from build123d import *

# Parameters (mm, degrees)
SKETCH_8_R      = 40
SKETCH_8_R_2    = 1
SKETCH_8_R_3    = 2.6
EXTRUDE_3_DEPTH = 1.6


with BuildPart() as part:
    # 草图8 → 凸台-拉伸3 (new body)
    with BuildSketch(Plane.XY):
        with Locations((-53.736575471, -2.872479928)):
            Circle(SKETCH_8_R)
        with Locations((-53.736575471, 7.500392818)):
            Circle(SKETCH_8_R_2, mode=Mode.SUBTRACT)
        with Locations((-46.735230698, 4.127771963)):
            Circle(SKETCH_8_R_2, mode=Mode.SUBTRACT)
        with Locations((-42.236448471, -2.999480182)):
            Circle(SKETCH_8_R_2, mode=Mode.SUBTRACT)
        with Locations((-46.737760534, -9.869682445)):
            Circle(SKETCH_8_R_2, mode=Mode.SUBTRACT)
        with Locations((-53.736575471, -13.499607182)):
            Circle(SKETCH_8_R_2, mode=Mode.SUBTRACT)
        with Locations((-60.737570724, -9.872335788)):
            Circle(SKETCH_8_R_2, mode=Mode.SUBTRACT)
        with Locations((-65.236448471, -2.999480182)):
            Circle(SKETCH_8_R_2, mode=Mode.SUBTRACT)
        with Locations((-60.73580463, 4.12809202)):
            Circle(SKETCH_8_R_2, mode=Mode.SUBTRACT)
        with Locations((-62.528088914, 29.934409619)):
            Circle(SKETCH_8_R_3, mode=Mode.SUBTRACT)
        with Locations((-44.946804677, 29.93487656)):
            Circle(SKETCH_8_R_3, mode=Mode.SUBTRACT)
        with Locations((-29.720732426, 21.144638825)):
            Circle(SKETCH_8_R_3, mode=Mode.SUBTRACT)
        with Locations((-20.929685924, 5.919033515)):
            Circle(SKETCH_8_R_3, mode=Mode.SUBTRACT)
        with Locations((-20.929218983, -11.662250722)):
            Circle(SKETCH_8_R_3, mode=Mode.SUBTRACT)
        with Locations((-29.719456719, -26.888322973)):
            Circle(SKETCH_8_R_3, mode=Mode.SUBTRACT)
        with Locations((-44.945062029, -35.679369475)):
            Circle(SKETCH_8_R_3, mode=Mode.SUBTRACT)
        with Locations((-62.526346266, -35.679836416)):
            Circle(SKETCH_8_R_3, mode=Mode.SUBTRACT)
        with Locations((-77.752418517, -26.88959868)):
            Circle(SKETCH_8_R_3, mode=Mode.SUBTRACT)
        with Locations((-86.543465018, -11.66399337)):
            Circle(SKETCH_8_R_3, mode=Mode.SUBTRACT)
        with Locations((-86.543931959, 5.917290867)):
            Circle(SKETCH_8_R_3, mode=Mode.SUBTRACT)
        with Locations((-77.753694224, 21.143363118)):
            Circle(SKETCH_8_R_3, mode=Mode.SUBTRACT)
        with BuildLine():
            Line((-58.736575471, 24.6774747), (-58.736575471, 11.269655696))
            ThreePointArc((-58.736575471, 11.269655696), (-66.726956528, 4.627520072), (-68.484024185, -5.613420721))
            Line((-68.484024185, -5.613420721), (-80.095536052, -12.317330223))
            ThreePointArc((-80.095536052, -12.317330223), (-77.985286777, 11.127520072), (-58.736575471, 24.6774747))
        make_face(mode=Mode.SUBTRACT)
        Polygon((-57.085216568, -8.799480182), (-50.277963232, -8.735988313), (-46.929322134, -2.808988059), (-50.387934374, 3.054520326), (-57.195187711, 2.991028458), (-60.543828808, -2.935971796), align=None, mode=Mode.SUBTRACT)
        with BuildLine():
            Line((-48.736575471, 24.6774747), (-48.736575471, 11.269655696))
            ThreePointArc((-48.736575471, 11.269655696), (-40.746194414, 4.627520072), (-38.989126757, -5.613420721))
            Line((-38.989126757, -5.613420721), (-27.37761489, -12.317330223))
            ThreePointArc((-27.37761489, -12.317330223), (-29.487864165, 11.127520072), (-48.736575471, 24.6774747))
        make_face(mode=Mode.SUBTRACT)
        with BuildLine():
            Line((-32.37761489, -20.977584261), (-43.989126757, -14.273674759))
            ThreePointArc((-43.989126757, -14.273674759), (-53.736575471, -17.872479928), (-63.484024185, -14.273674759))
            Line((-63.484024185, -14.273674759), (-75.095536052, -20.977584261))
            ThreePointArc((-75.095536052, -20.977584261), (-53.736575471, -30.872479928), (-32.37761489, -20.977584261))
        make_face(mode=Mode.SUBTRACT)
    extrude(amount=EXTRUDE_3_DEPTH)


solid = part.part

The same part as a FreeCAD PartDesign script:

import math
import FreeCAD as App
import Part
import Sketcher

V = App.Vector
Q = App.Units.Quantity


def add_polygon(sketch, points):
    """Adds a closed chain of lines whose ends are joined by coincident constraints."""
    first, n = sketch.GeometryCount, len(points)
    for a, b in zip(points, points[1:] + points[:1]):
        sketch.addGeometry(Part.LineSegment(App.Vector(*a, 0), App.Vector(*b, 0)), False)
    for i in range(n):
        sketch.addConstraint(Sketcher.Constraint("Coincident", first + i, 2, first + (i + 1) % n, 1))

doc = App.newDocument("Part")
body = doc.addObject("PartDesign::Body", "Body")

# Sketch on XY plane
sketch1 = doc.addObject("Sketcher::SketchObject", "Sketch")
body.addObject(sketch1)
sketch1.AttachmentSupport = (doc.XY_Plane, [""])
sketch1.MapMode = "FlatFace"
sketch1.addGeometry(Part.Circle(V(-53.7, -2.9, 0), V(0, 0, 1), 40), False)  # 0
sketch1.addGeometry(Part.Circle(V(-77.8, -26.9, 0), V(0, 0, 1), 2.6), False)  # 1
sketch1.addGeometry(Part.Circle(V(-62.5, -35.7, 0), V(0, 0, 1), 2.6), False)  # 2
sketch1.addGeometry(Part.Circle(V(-86.5, -11.7, 0), V(0, 0, 1), 2.6), False)  # 3
sketch1.addGeometry(Part.Circle(V(-65.2, -3, 0), V(0, 0, 1), 1), False)  # 4
sketch1.addGeometry(Part.Circle(V(-60.7, -9.9, 0), V(0, 0, 1), 1), False)  # 5
sketch1.addGeometry(Part.Circle(V(-44.9, -35.7, 0), V(0, 0, 1), 2.6), False)  # 6
sketch1.addGeometry(Part.LineSegment(V(-44, -14.3, 0), V(-32.4, -21, 0)), False)  # 7
sketch1.addGeometry(Part.ArcOfCircle(Part.Circle(V(-53.7, -2.9, 0), V(0, 0, 1), 28), math.radians(-140), math.radians(-40)), False)  # 8
sketch1.addGeometry(Part.LineSegment(V(-75.1, -21, 0), V(-63.5, -14.3, 0)), False)  # 9
sketch1.addGeometry(Part.ArcOfCircle(Part.Circle(V(-53.7, -2.9, 0), V(0, 0, 1), 15), math.radians(-131), math.radians(-49)), False)  # 10
sketch1.addGeometry(Part.Circle(V(-29.7, -26.9, 0), V(0, 0, 1), 2.6), False)  # 11
sketch1.addGeometry(Part.Circle(V(-53.7, -13.5, 0), V(0, 0, 1), 1), False)  # 12
sketch1.addGeometry(Part.Circle(V(-46.7, -9.9, 0), V(0, 0, 1), 1), False)  # 13
sketch1.addGeometry(Part.Circle(V(-42.2, -3, 0), V(0, 0, 1), 1), False)  # 14
sketch1.addGeometry(Part.Circle(V(-20.9, -11.7, 0), V(0, 0, 1), 2.6), False)  # 15
sketch1.addGeometry(Part.Circle(V(-86.5, 5.9, 0), V(0, 0, 1), 2.6), False)  # 16
sketch1.addGeometry(Part.Circle(V(-60.7, 4.1, 0), V(0, 0, 1), 1), False)  # 17
sketch1.addGeometry(Part.ArcOfCircle(Part.Circle(V(-53.7, -2.9, 0), V(0, 0, 1), 28), math.radians(100), math.radians(200)), False)  # 18
sketch1.addGeometry(Part.LineSegment(V(-58.7, 24.7, 0), V(-58.7, 11.3, 0)), False)  # 19
sketch1.addGeometry(Part.ArcOfCircle(Part.Circle(V(-53.7, -2.9, 0), V(0, 0, 1), 15), math.radians(109), math.radians(191)), False)  # 20
sketch1.addGeometry(Part.LineSegment(V(-68.5, -5.6, 0), V(-80.1, -12.3, 0)), False)  # 21
sketch1.addGeometry(Part.Circle(V(-77.8, 21.1, 0), V(0, 0, 1), 2.6), False)  # 22
sketch1.addGeometry(Part.Circle(V(-62.5, 29.9, 0), V(0, 0, 1), 2.6), False)  # 23
add_polygon(sketch1, [(-50.3, -8.7), (-57.1, -8.8), (-60.5, -2.9), (-57.2, 3), (-50.4, 3.1), (-46.9, -2.8)])  # lines 24-29
sketch1.addGeometry(Part.Circle(V(-46.7, 4.1, 0), V(0, 0, 1), 1), False)  # 30
sketch1.addGeometry(Part.Circle(V(-53.7, 7.5, 0), V(0, 0, 1), 1), False)  # 31
sketch1.addGeometry(Part.LineSegment(V(-48.7, 11.3, 0), V(-48.7, 24.7, 0)), False)  # 32
sketch1.addGeometry(Part.ArcOfCircle(Part.Circle(V(-53.7, -2.9, 0), V(0, 0, 1), 28), math.radians(-20), math.radians(80)), False)  # 33
sketch1.addGeometry(Part.LineSegment(V(-27.4, -12.3, 0), V(-39, -5.6, 0)), False)  # 34
sketch1.addGeometry(Part.ArcOfCircle(Part.Circle(V(-53.7, -2.9, 0), V(0, 0, 1), 15), math.radians(-11), math.radians(71)), False)  # 35
sketch1.addGeometry(Part.Circle(V(-20.9, 5.9, 0), V(0, 0, 1), 2.6), False)  # 36
sketch1.addGeometry(Part.Circle(V(-44.9, 29.9, 0), V(0, 0, 1), 2.6), False)  # 37
sketch1.addGeometry(Part.Circle(V(-29.7, 21.1, 0), V(0, 0, 1), 2.6), False)  # 38
sketch1.addConstraint([
    Sketcher.Constraint("Coincident", 7, 2, 8, 2),
    Sketcher.Constraint("Coincident", 8, 1, 9, 1),
    Sketcher.Constraint("Coincident", 9, 2, 10, 1),
    Sketcher.Constraint("Coincident", 10, 2, 7, 1),
    Sketcher.Constraint("Coincident", 18, 1, 19, 1),
    Sketcher.Constraint("Coincident", 19, 2, 20, 1),
    Sketcher.Constraint("Coincident", 20, 2, 21, 1),
    Sketcher.Constraint("Coincident", 21, 2, 18, 2),
    Sketcher.Constraint("Coincident", 32, 2, 33, 2),
    Sketcher.Constraint("Coincident", 33, 1, 34, 1),
    Sketcher.Constraint("Coincident", 34, 2, 35, 1),
    Sketcher.Constraint("Coincident", 35, 2, 32, 1),
    Sketcher.Constraint("Vertical", 19),
    Sketcher.Constraint("Vertical", 32),
    Sketcher.Constraint("Coincident", 8, 3, 0, 3),
    Sketcher.Constraint("Coincident", 10, 3, 0, 3),
    Sketcher.Constraint("Coincident", 18, 3, 0, 3),
    Sketcher.Constraint("Coincident", 20, 3, 0, 3),
    Sketcher.Constraint("Coincident", 33, 3, 0, 3),
    Sketcher.Constraint("Coincident", 35, 3, 0, 3),
    Sketcher.Constraint("Equal", 1, 2),
    Sketcher.Constraint("Equal", 2, 3),
    Sketcher.Constraint("Equal", 4, 5),
    Sketcher.Constraint("Equal", 3, 6),
    Sketcher.Constraint("Equal", 6, 11),
    Sketcher.Constraint("Equal", 5, 12),
    Sketcher.Constraint("Equal", 12, 13),
    Sketcher.Constraint("Equal", 13, 14),
    Sketcher.Constraint("Equal", 11, 15),
    Sketcher.Constraint("Equal", 15, 16),
    Sketcher.Constraint("Equal", 14, 17),
    Sketcher.Constraint("Equal", 8, 18),
    Sketcher.Constraint("Equal", 10, 20),
    Sketcher.Constraint("Equal", 16, 22),
    Sketcher.Constraint("Equal", 22, 23),
    Sketcher.Constraint("Equal", 17, 30),
    Sketcher.Constraint("Equal", 30, 31),
    Sketcher.Constraint("Equal", 18, 33),
    Sketcher.Constraint("Equal", 20, 35),
    Sketcher.Constraint("Equal", 23, 36),
    Sketcher.Constraint("Equal", 36, 37),
    Sketcher.Constraint("Equal", 37, 38),
    Sketcher.Constraint("Parallel", 9, 21),
    Sketcher.Constraint("Parallel", 24, 27),
    Sketcher.Constraint("Parallel", 25, 28),
    Sketcher.Constraint("Parallel", 26, 29),
    Sketcher.Constraint("Parallel", 7, 34),
    Sketcher.Constraint("Horizontal", 4, 3, 14, 3),
    Sketcher.Constraint("Horizontal", 7, 2, 8, 1),
    Sketcher.Constraint("Horizontal", 9, 2, 10, 2),
    Sketcher.Constraint("Horizontal", 18, 1, 32, 2),
    Sketcher.Constraint("Horizontal", 21, 2, 33, 1),
    Sketcher.Constraint("Vertical", 10, 3, 12, 3),
    Sketcher.Constraint("Vertical", 20, 3, 31, 3),
    Sketcher.Constraint("Equal", 9, 21),
    Sketcher.Constraint("Equal", 24, 25),
    Sketcher.Constraint("Equal", 25, 26),
    Sketcher.Constraint("Equal", 26, 27),
    Sketcher.Constraint("Diameter", 0, Q("80 mm")),
    Sketcher.Constraint("Diameter", 4, Q("2 mm")),
    Sketcher.Constraint("Radius", 8, Q("28 mm")),
    Sketcher.Constraint("Radius", 10, Q("15 mm")),
    Sketcher.Constraint("Diameter", 1, Q("5.2 mm")),
    Sketcher.Constraint("Angle", 7, Q("-30 deg")),
    Sketcher.Constraint("DistanceX", 18, 1, 31, 3, Q("5 mm")),
    Sketcher.Constraint("DistanceX", 20, 2, 9, 2, Q("5 mm")),
    Sketcher.Constraint("DistanceY", 4, 3, 0, 3, Q("0.127 mm")),
    Sketcher.Constraint("DistanceX", 17, 3, 37, 3, Q("15.789 mm")),
    Sketcher.Constraint("DistanceY", 24, 2, 0, 3, Q("5.927 mm")),
    Sketcher.Constraint("DistanceY", 25, 2, 26, 2, Q("5.927 mm")),
    Sketcher.Constraint("DistanceY", 10, 3, 27, 2, Q("5.927 mm")),
    Sketcher.Constraint("DistanceY", 1, 3, -1, 1, Q("26.889599 mm")),
    Sketcher.Constraint("DistanceY", 2, 3, 5, 3, Q("25.807501 mm")),
    Sketcher.Constraint("DistanceY", 17, 3, 31, 3, Q("3.372301 mm")),
    Sketcher.Constraint("DistanceX", 30, 3, 38, 3, Q("17.014498 mm")),
    Sketcher.Constraint("DistanceY", 7, 2, 13, 3, Q("11.107902 mm")),
    Sketcher.Constraint("DistanceY", 18, 1, 37, 3, Q("5.257402 mm")),
    Sketcher.Constraint("Distance", 24, Q("6.807549 mm")),
    Sketcher.Constraint("DistanceY", 0, 3, -1, 1, Q("2.87248 mm")),
    Sketcher.Constraint("DistanceX", 1, 3, -1, 1, Q("77.752419 mm")),
    Sketcher.Constraint("DistanceX", 4, 3, -1, 1, Q("65.236448 mm")),
    Sketcher.Constraint("DistanceX", 5, 3, -1, 1, Q("60.737571 mm")),
    Sketcher.Constraint("DistanceY", 6, 3, -1, 1, Q("35.679369 mm")),
    Sketcher.Constraint("DistanceX", 13, 3, -1, 1, Q("46.737761 mm")),
    Sketcher.Constraint("DistanceX", 14, 3, -1, 1, Q("42.236448 mm")),
    Sketcher.Constraint("DistanceX", 15, 3, -1, 1, Q("20.929219 mm")),
    Sketcher.Constraint("DistanceY", 15, 3, -1, 1, Q("11.662251 mm")),
    Sketcher.Constraint("DistanceX", 16, 3, -1, 1, Q("86.543932 mm")),
    Sketcher.Constraint("DistanceY", -1, 1, 16, 3, Q("5.917291 mm")),
    Sketcher.Constraint("DistanceX", 23, 3, -1, 1, Q("62.528089 mm")),
    Sketcher.Constraint("DistanceY", -1, 1, 23, 3, Q("29.93441 mm")),
    Sketcher.Constraint("DistanceX", 30, 3, -1, 1, Q("46.735231 mm")),
    Sketcher.Constraint("DistanceY", -1, 1, 30, 3, Q("4.127772 mm")),
    Sketcher.Constraint("DistanceY", -1, 1, 38, 3, Q("21.144639 mm")),
    Sketcher.Constraint("DistanceX", 25, 2, -1, 1, Q("60.543829 mm")),
    Sketcher.Constraint("DistanceY", 25, 2, -1, 1, Q("2.935972 mm")),
    Sketcher.Constraint("DistanceX", 2, 3, 0, 3, Q("8.789771 mm")),
    Sketcher.Constraint("DistanceX", 3, 3, 0, 3, Q("32.80689 mm")),
    Sketcher.Constraint("DistanceX", 5, 3, 6, 3, Q("15.792509 mm")),
    Sketcher.Constraint("DistanceX", 0, 3, 11, 3, Q("24.017119 mm")),
    Sketcher.Constraint("DistanceY", 12, 3, 5, 3, Q("3.627271 mm")),
    Sketcher.Constraint("DistanceX", 17, 3, 10, 3, Q("6.999229 mm")),
    Sketcher.Constraint("DistanceY", 10, 3, 17, 3, Q("7.000572 mm")),
    Sketcher.Constraint("DistanceX", 22, 3, 17, 3, Q("17.01789 mm")),
    Sketcher.Constraint("DistanceY", 17, 3, 22, 3, Q("17.015271 mm")),
    Sketcher.Constraint("DistanceY", 30, 3, 36, 3, Q("1.791262 mm")),
    Sketcher.Constraint("DistanceX", 31, 3, 36, 3, Q("32.80689 mm")),
    Sketcher.Constraint("DistanceY", 11, 3, 7, 2, Q("5.910739 mm")),
    Sketcher.Constraint("DistanceY", 8, 1, 3, 3, Q("9.313591 mm")),
    Sketcher.Constraint("DistanceY", 8, 1, 5, 3, Q("11.105248 mm")),
    Sketcher.Constraint("DistanceX", 10, 2, 14, 3, Q("1.752678 mm")),
])
pad1 = doc.addObject("PartDesign::Pad", "Pad")
body.addObject(pad1)
pad1.Profile = sketch1
pad1.Length = 1.6

doc.recompute()
